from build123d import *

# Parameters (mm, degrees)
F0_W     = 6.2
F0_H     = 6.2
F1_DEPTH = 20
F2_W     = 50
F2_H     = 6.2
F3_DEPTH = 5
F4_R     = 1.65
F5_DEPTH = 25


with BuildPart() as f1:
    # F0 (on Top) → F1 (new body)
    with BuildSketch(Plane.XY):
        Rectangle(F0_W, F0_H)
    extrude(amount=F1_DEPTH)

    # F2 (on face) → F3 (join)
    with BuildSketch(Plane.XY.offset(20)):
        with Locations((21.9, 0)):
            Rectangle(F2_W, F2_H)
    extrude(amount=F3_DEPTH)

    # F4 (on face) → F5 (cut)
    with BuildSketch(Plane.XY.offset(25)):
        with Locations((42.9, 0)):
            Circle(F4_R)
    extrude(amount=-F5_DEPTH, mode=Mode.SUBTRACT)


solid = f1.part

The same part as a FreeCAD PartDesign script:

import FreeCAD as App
import Part
import Sketcher

V = App.Vector

doc = App.newDocument("Part")
body = doc.addObject("PartDesign::Body", "Body")

sketch1 = doc.addObject("Sketcher::SketchObject", "Sketch")
body.addObject(sketch1)
sketch1.AttachmentSupport = (doc.XY_Plane, [""])
sketch1.MapMode = "FlatFace"
sketch1.addGeometry([
    Part.LineSegment(V(-3.1, 3.1, 0), V(-3.1, -3.1, 0)),
    Part.LineSegment(V(-3.1, -3.1, 0), V(3.1, -3.1, 0)),
    Part.LineSegment(V(3.1, -3.1, 0), V(3.1, 3.1, 0)),
    Part.LineSegment(V(3.1, 3.1, 0), V(-3.1, 3.1, 0)),
], False)
sketch1.addConstraint([
    Sketcher.Constraint("Coincident", 0, 2, 1, 1),
    Sketcher.Constraint("Coincident", 1, 2, 2, 1),
    Sketcher.Constraint("Coincident", 2, 2, 3, 1),
    Sketcher.Constraint("Coincident", 3, 2, 0, 1),
    Sketcher.Constraint("Vertical", 0),
    Sketcher.Constraint("Horizontal", 1),
    Sketcher.Constraint("Vertical", 2),
    Sketcher.Constraint("Horizontal", 3),
    Sketcher.Constraint("Symmetric", 0, 2, 2, 2, -1, 1),
    Sketcher.Constraint("Equal", 3, 0),
    Sketcher.Constraint("DistanceX", 1, 1, 1, 2, 6.2),
])
pad1 = doc.addObject("PartDesign::Pad", "Pad")
body.addObject(pad1)
pad1.Profile = sketch1
pad1.Length = 20

sketch2 = doc.addObject("Sketcher::SketchObject", "Sketch001")
body.addObject(sketch2)
sketch2.AttachmentSupport = (doc.XY_Plane, [""])
sketch2.MapMode = "FlatFace"
sketch2.AttachmentOffset = App.Placement(V(0, 0, 20), App.Rotation())
sketch2.addGeometry([
    Part.LineSegment(V(-3.1, 3.1, 0), V(-3.1, -3.1, 0)),
    Part.LineSegment(V(-3.1, -3.1, 0), V(46.9, -3.1, 0)),
    Part.LineSegment(V(46.9, -3.1, 0), V(46.9, 3.1, 0)),
    Part.LineSegment(V(46.9, 3.1, 0), V(-3.1, 3.1, 0)),
], False)
sketch2.addConstraint([
    Sketcher.Constraint("Coincident", 0, 2, 1, 1),
    Sketcher.Constraint("Coincident", 1, 2, 2, 1),
    Sketcher.Constraint("Coincident", 2, 2, 3, 1),
    Sketcher.Constraint("Coincident", 3, 2, 0, 1),
    Sketcher.Constraint("Vertical", 0),
    Sketcher.Constraint("Horizontal", 1),
    Sketcher.Constraint("Vertical", 2),
    Sketcher.Constraint("Horizontal", 3),
    Sketcher.Constraint("DistanceX", 1, 1, 1, 2, 50.0),
    Sketcher.Constraint("DistanceY", 0, 2, 0, 1, 6.2),
    Sketcher.Constraint("DistanceX", 0, 2, -1, 1, 3.1),
    Sketcher.Constraint("DistanceY", 0, 2, -1, 1, 3.1),
])
pad2 = doc.addObject("PartDesign::Pad", "Pad001")
body.addObject(pad2)
pad2.Profile = sketch2
pad2.Length = 5

sketch3 = doc.addObject("Sketcher::SketchObject", "Sketch002")
body.addObject(sketch3)
sketch3.AttachmentSupport = (doc.XY_Plane, [""])
sketch3.MapMode = "FlatFace"
sketch3.AttachmentOffset = App.Placement(V(0, 0, 25), App.Rotation())
sketch3.addGeometry(Part.Circle(V(42.9, 0, 0), V(0, 0, 1), 1.65), False)
sketch3.addConstraint([
    Sketcher.Constraint("PointOnObject", 0, 3, -1),
    Sketcher.Constraint("Diameter", 0, 3.3),
    Sketcher.Constraint("DistanceX", -1, 1, 0, 3, 42.9),
])
pocket1 = doc.addObject("PartDesign::Pocket", "Pocket")
body.addObject(pocket1)
pocket1.Profile = sketch3
pocket1.Length = 25

doc.recompute()
